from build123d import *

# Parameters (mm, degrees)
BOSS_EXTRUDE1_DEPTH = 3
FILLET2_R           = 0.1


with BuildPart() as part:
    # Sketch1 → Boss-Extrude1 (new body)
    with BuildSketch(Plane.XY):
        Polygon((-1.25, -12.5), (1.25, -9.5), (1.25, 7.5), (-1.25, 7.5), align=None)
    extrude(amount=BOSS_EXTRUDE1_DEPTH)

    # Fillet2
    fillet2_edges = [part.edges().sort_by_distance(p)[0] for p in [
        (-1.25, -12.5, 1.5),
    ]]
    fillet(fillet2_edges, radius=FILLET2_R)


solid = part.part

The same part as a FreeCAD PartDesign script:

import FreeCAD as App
import Part
import Sketcher
from FreeCAD import Vector
Q = App.Units.Quantity


def edges_at(feature, points):
    """Names of the edges that pass closest to the given points."""
    edges = feature.Shape.Edges
    near = lambda p: min(range(len(edges)), key=lambda i: edges[i].distToShape(Part.Vertex(*p))[0])
    return sorted({f"Edge{near(p) + 1}" for p in points})


def add_polygon(sketch, points):
    """Adds a closed chain of lines whose ends are joined by coincident constraints."""
    first, n = sketch.GeometryCount, len(points)
    for a, b in zip(points, points[1:] + points[:1]):
        sketch.addGeometry(Part.LineSegment(App.Vector(*a, 0), App.Vector(*b, 0)), False)
    for i in range(n):
        sketch.addConstraint(Sketcher.Constraint("Coincident", first + i, 2, first + (i + 1) % n, 1))

doc = App.newDocument("Part")
body = doc.addObject("PartDesign::Body", "Body")

# Sketch on XY plane
sketch1 = body.newObject("Sketcher::SketchObject", "Sketch")
sketch1.AttachmentSupport = (doc.getObject("XY_Plane"), [""])
sketch1.MapMode = "FlatFace"
add_polygon(sketch1, [(-1.2, -12.5), (1.2, -9.5), (1.2, 7.5), (-1.2, 7.5)])  # lines 0-3
sketch1.addConstraint([
    Sketcher.Constraint("Vertical", 1),
    Sketcher.Constraint("Horizontal", 2),
    Sketcher.Constraint("Vertical", 3),
    Sketcher.Constraint("DistanceY", 1, 1, 1, 2, Q("17 mm")),
    Sketcher.Constraint("DistanceY", 3, 2, 3, 1, Q("20 mm")),
    Sketcher.Constraint("DistanceX", 2, 2, 2, 1, Q("2.5 mm")),
    Sketcher.Constraint("DistanceY", 0, 2, -1, 1, Q("9.5 mm")),
    Sketcher.Constraint("DistanceX", -1, 1, 0, 2, Q("1.25 mm")),
])
pad1 = body.newObject("PartDesign::Pad", "Pad")
pad1.Profile = sketch1
pad1.Length = 3
doc.recompute()

fillet = body.newObject("PartDesign::Fillet", "Fillet")
fillet.Base = (pad1, edges_at(pad1, [(-1.25, -12.5, 1.5)]))
fillet.Radius = 0.1

doc.recompute()
